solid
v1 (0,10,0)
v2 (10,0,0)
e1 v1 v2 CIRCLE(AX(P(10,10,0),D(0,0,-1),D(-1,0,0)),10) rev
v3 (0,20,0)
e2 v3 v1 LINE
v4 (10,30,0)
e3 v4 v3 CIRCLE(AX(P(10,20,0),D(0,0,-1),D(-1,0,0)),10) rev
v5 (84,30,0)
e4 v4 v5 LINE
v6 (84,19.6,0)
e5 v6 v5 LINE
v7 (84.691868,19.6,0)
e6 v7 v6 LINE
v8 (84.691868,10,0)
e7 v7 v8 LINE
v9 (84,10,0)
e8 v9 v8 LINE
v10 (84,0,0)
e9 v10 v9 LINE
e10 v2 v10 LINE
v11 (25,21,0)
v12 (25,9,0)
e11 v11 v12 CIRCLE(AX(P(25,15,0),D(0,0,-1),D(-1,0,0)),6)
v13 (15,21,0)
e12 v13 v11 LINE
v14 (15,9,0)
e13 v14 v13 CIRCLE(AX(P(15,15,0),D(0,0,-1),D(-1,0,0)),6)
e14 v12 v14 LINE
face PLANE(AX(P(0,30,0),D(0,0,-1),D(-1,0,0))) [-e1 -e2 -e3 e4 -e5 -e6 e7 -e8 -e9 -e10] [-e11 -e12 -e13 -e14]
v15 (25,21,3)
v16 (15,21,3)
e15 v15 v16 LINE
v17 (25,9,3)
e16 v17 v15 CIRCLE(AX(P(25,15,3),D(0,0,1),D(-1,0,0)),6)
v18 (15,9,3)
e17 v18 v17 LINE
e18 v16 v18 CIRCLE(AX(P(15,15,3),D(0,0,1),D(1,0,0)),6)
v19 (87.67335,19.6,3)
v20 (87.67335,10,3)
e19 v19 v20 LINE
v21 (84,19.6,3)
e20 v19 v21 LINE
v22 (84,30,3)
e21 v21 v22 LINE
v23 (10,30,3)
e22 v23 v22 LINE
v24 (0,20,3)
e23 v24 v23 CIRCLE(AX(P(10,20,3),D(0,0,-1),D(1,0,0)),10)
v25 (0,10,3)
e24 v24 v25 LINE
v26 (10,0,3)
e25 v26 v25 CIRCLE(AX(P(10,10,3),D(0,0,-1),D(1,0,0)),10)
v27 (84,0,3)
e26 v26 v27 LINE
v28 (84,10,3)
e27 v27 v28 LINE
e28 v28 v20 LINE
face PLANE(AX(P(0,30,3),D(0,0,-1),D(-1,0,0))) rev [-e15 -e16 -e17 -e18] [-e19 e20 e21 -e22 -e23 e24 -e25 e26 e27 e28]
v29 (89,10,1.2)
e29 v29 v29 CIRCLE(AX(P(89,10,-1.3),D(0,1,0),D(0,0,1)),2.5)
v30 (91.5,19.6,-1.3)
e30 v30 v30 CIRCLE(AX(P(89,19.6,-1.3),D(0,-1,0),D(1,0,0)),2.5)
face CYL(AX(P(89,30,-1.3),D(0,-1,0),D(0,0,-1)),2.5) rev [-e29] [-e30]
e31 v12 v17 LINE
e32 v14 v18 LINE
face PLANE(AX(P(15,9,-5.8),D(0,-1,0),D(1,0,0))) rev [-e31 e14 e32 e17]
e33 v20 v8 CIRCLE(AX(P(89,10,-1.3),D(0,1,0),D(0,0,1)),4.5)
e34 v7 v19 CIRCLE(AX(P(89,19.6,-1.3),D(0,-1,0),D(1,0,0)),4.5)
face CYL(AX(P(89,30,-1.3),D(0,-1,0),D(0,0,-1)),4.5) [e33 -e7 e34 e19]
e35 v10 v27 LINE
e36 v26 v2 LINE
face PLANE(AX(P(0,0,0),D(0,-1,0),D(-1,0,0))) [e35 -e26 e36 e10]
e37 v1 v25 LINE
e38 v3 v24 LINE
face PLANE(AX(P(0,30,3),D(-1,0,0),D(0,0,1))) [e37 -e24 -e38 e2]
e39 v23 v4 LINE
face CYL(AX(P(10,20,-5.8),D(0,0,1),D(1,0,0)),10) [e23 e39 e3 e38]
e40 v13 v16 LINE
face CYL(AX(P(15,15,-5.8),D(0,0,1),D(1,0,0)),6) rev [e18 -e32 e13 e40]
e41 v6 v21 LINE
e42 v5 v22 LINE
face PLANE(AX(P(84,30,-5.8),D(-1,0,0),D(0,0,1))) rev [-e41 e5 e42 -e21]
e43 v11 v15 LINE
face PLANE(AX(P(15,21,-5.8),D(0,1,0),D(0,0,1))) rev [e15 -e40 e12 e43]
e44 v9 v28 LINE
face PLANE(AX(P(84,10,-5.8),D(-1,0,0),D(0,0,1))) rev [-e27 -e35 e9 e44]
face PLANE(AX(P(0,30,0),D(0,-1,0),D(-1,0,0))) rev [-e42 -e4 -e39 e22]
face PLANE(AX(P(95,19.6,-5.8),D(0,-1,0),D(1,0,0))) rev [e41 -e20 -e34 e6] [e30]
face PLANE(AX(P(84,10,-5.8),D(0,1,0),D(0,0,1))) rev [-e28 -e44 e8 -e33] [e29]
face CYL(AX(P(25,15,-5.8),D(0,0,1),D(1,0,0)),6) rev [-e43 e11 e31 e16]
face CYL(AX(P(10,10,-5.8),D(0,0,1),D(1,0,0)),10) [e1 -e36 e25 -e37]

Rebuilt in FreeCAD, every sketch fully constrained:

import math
import FreeCAD as App
import Part
import Sketcher
Q = App.Units.Quantity

doc = App.newDocument("Part")
body = doc.addObject("PartDesign::Body", "Body")

# Sketch on XZ plane
sketch1 = body.newObject("Sketcher::SketchObject", "Sketch")
sketch1.AttachmentSupport = (doc.getObject("XZ_Plane"), [""])
sketch1.MapMode = "FlatFace"
sketch1.addGeometry(Part.LineSegment(App.Vector(0, 0, 0), App.Vector(0, 3, 0)), False)
sketch1.addGeometry(Part.LineSegment(App.Vector(0, 3, 0), App.Vector(88, 3, 0)), False)
sketch1.addGeometry(Part.LineSegment(App.Vector(88, 3, 0), App.Vector(88, 0, 0)), False)
sketch1.addGeometry(Part.LineSegment(App.Vector(88, 0, 0), App.Vector(0, 0, 0)), False)
sketch1.addConstraint(Sketcher.Constraint("Coincident", 0, 2, 1, 1))
sketch1.addConstraint(Sketcher.Constraint("Coincident", 1, 2, 2, 1))
sketch1.addConstraint(Sketcher.Constraint("Coincident", 2, 2, 3, 1))
sketch1.addConstraint(Sketcher.Constraint("Coincident", 3, 2, 0, 1))
sketch1.addConstraint(Sketcher.Constraint("Vertical", 0))
sketch1.addConstraint(Sketcher.Constraint("Horizontal", 1))
sketch1.addConstraint(Sketcher.Constraint("Vertical", 2))
sketch1.addConstraint(Sketcher.Constraint("Horizontal", 3))
sketch1.addConstraint(Sketcher.Constraint("Coincident", 3, 2, -1, 1))
sketch1.addConstraint(Sketcher.Constraint("DistanceX", 1, 1, 1, 2, Q("88 mm")))
sketch1.addConstraint(Sketcher.Constraint("DistanceY", 0, 1, 0, 2, Q("3 mm")))
pad1 = body.newObject("PartDesign::Pad", "Pad")
pad1.Profile = sketch1
pad1.Length = 30
pad1.Reversed = True

# Sketch on XZ plane
sketch2 = body.newObject("Sketcher::SketchObject", "Sketch001")
sketch2.AttachmentSupport = (doc.getObject("XZ_Plane"), [""])
sketch2.MapMode = "FlatFace"
sketch2.addGeometry(Part.Circle(App.Vector(89, -1.3, 0), App.Vector(0, 0, 1), 4.5), False)
sketch2.addConstraint(Sketcher.Constraint("Diameter", 0, Q("9 mm")))
sketch2.addConstraint(Sketcher.Constraint("DistanceX", -1, 1, 0, 3, Q("89 mm")))
sketch2.addConstraint(Sketcher.Constraint("DistanceY", 0, 3, -1, 1, Q("1.3 mm")))
pad2 = body.newObject("PartDesign::Pad", "Pad001")
pad2.Profile = sketch2
pad2.Length = 30
pad2.Reversed = True

# Sketch on XZ plane
sketch3 = body.newObject("Sketcher::SketchObject", "Sketch002")
sketch3.AttachmentSupport = (doc.getObject("XZ_Plane"), [""])
sketch3.MapMode = "FlatFace"
sketch3.addGeometry(Part.Circle(App.Vector(89, -1.3, 0), App.Vector(0, 0, 1), 2.5), False)
sketch3.addConstraint(Sketcher.Constraint("Diameter", 0, Q("5 mm")))
sketch3.addConstraint(Sketcher.Constraint("DistanceX", -1, 1, 0, 3, Q("89 mm")))
sketch3.addConstraint(Sketcher.Constraint("DistanceY", 0, 3, -1, 1, Q("1.3 mm")))
pocket1 = body.newObject("PartDesign::Pocket", "Pocket")
pocket1.Profile = sketch3
pocket1.Type = "ThroughAll"

# Sketch on XY plane
sketch4 = body.newObject("Sketcher::SketchObject", "Sketch003")
sketch4.AttachmentSupport = (doc.getObject("XY_Plane"), [""])
sketch4.MapMode = "FlatFace"
sketch4.addGeometry(Part.LineSegment(App.Vector(84, 30, 0), App.Vector(84, 20, 0)), False)
sketch4.addGeometry(Part.LineSegment(App.Vector(84, 20, 0), App.Vector(95, 20, 0)), False)
sketch4.addGeometry(Part.LineSegment(App.Vector(95, 20, 0), App.Vector(95, 30, 0)), False)
sketch4.addGeometry(Part.LineSegment(App.Vector(95, 30, 0), App.Vector(84, 30, 0)), False)
sketch4.addGeometry(Part.LineSegment(App.Vector(84, 10, 0), App.Vector(84, 0, 0)), False)
sketch4.addGeometry(Part.LineSegment(App.Vector(84, 0, 0), App.Vector(95, 0, 0)), False)
sketch4.addGeometry(Part.LineSegment(App.Vector(95, 0, 0), App.Vector(95, 10, 0)), False)
sketch4.addGeometry(Part.LineSegment(App.Vector(95, 10, 0), App.Vector(84, 10, 0)), False)
sketch4.addConstraint(Sketcher.Constraint("Coincident", 0, 2, 1, 1))
sketch4.addConstraint(Sketcher.Constraint("Coincident", 1, 2, 2, 1))
sketch4.addConstraint(Sketcher.Constraint("Coincident", 2, 2, 3, 1))
sketch4.addConstraint(Sketcher.Constraint("Coincident", 3, 2, 0, 1))
sketch4.addConstraint(Sketcher.Constraint("Coincident", 4, 2, 5, 1))
sketch4.addConstraint(Sketcher.Constraint("Coincident", 5, 2, 6, 1))
sketch4.addConstraint(Sketcher.Constraint("Coincident", 6, 2, 7, 1))
sketch4.addConstraint(Sketcher.Constraint("Coincident", 7, 2, 4, 1))
sketch4.addConstraint(Sketcher.Constraint("Vertical", 0))
sketch4.addConstraint(Sketcher.Constraint("Horizontal", 1))
sketch4.addConstraint(Sketcher.Constraint("Vertical", 2))
sketch4.addConstraint(Sketcher.Constraint("Horizontal", 3))
sketch4.addConstraint(Sketcher.Constraint("Vertical", 4))
sketch4.addConstraint(Sketcher.Constraint("Horizontal", 5))
sketch4.addConstraint(Sketcher.Constraint("Vertical", 6))
sketch4.addConstraint(Sketcher.Constraint("Horizontal", 7))
sketch4.addConstraint(Sketcher.Constraint("PointOnObject", 4, 2, -1))
sketch4.addConstraint(Sketcher.Constraint("Vertical", 3, 2, 4, 2))
sketch4.addConstraint(Sketcher.Constraint("Vertical", 2, 2, 5, 2))
sketch4.addConstraint(Sketcher.Constraint("DistanceX", 1, 1, 1, 2, Q("11 mm")))
sketch4.addConstraint(Sketcher.Constraint("DistanceY", 4, 2, 4, 1, Q("10 mm")))
sketch4.addConstraint(Sketcher.Constraint("DistanceY", 0, 2, 0, 1, Q("10.4 mm")))
sketch4.addConstraint(Sketcher.Constraint("DistanceX", -1, 1, 0, 2, Q("84 mm")))
sketch4.addConstraint(Sketcher.Constraint("DistanceY", -1, 1, 2, 2, Q("30 mm")))
pocket2 = body.newObject("PartDesign::Pocket", "Pocket001")
pocket2.Profile = sketch4
pocket2.Type = "ThroughAll"
pocket2.Midplane = True

# Sketch on XY plane
sketch5 = body.newObject("Sketcher::SketchObject", "Sketch004")
sketch5.AttachmentSupport = (doc.getObject("XY_Plane"), [""])
sketch5.MapMode = "FlatFace"
sketch5.AttachmentOffset = App.Placement(App.Vector(0, 0, 3), App.Rotation())
sketch5.addGeometry(Part.LineSegment(App.Vector(25, 21, 0), App.Vector(15, 21, 0)), False)
sketch5.addGeometry(Part.ArcOfCircle(Part.Circle(App.Vector(15, 15, 0), App.Vector(0, 0, 1), 6), math.radians(90), math.radians(270)), False)
sketch5.addGeometry(Part.LineSegment(App.Vector(15, 9, 0), App.Vector(25, 9, 0)), False)
sketch5.addGeometry(Part.ArcOfCircle(Part.Circle(App.Vector(25, 15, 0), App.Vector(0, 0, 1), 6), math.radians(-90), math.radians(90)), False)
sketch5.addGeometry(Part.LineSegment(App.Vector(10, 30, 0), App.Vector(0, 30, 0)), False)
sketch5.addGeometry(Part.LineSegment(App.Vector(0, 30, 0), App.Vector(0, 20, 0)), False)
sketch5.addGeometry(Part.ArcOfCircle(Part.Circle(App.Vector(10, 20, 0), App.Vector(0, 0, 1), 10), math.radians(90), math.radians(180)), False)
sketch5.addGeometry(Part.LineSegment(App.Vector(0, 10, 0), App.Vector(0, 0, 0)), False)
sketch5.addGeometry(Part.LineSegment(App.Vector(0, 0, 0), App.Vector(10, 0, 0)), False)
sketch5.addGeometry(Part.ArcOfCircle(Part.Circle(App.Vector(10, 10, 0), App.Vector(0, 0, 1), 10), math.radians(180), math.radians(270)), False)
sketch5.addConstraint(Sketcher.Constraint("Tangent", 0, 2, 1, 1))
sketch5.addConstraint(Sketcher.Constraint("Tangent", 1, 2, 2, 1))
sketch5.addConstraint(Sketcher.Constraint("Tangent", 2, 2, 3, 1))
sketch5.addConstraint(Sketcher.Constraint("Tangent", 3, 2, 0, 1))
sketch5.addConstraint(Sketcher.Constraint("Coincident", 4, 2, 5, 1))
sketch5.addConstraint(Sketcher.Constraint("Tangent", 5, 2, 6, 2))
sketch5.addConstraint(Sketcher.Constraint("Tangent", 6, 1, 4, 1))
sketch5.addConstraint(Sketcher.Constraint("Coincident", 7, 2, 8, 1))
sketch5.addConstraint(Sketcher.Constraint("Tangent", 8, 2, 9, 2))
sketch5.addConstraint(Sketcher.Constraint("Tangent", 9, 1, 7, 1))
sketch5.addConstraint(Sketcher.Constraint("Horizontal", 0))
sketch5.addConstraint(Sketcher.Constraint("Horizontal", 2))
sketch5.addConstraint(Sketcher.Constraint("Horizontal", 4))
sketch5.addConstraint(Sketcher.Constraint("Vertical", 5))
sketch5.addConstraint(Sketcher.Constraint("Vertical", 7))
sketch5.addConstraint(Sketcher.Constraint("Horizontal", 8))
sketch5.addConstraint(Sketcher.Constraint("Coincident", 7, 2, -1, 1))
sketch5.addConstraint(Sketcher.Constraint("Equal", 6, 9))
sketch5.addConstraint(Sketcher.Constraint("PointOnObject", 4, 2, -2))
sketch5.addConstraint(Sketcher.Constraint("Equal", 2, 4))
sketch5.addConstraint(Sketcher.Constraint("Radius", 1, Q("6 mm")))
sketch5.addConstraint(Sketcher.Constraint("Radius", 6, Q("10 mm")))
sketch5.addConstraint(Sketcher.Constraint("DistanceX", -1, 1, 1, 3, Q("15 mm")))
sketch5.addConstraint(Sketcher.Constraint("DistanceY", -1, 1, 1, 3, Q("15 mm")))
sketch5.addConstraint(Sketcher.Constraint("DistanceY", -1, 1, 6, 3, Q("20 mm")))
pocket3 = body.newObject("PartDesign::Pocket", "Pocket002")
pocket3.Profile = sketch5
pocket3.Type = "ThroughAll"

doc.recompute()
